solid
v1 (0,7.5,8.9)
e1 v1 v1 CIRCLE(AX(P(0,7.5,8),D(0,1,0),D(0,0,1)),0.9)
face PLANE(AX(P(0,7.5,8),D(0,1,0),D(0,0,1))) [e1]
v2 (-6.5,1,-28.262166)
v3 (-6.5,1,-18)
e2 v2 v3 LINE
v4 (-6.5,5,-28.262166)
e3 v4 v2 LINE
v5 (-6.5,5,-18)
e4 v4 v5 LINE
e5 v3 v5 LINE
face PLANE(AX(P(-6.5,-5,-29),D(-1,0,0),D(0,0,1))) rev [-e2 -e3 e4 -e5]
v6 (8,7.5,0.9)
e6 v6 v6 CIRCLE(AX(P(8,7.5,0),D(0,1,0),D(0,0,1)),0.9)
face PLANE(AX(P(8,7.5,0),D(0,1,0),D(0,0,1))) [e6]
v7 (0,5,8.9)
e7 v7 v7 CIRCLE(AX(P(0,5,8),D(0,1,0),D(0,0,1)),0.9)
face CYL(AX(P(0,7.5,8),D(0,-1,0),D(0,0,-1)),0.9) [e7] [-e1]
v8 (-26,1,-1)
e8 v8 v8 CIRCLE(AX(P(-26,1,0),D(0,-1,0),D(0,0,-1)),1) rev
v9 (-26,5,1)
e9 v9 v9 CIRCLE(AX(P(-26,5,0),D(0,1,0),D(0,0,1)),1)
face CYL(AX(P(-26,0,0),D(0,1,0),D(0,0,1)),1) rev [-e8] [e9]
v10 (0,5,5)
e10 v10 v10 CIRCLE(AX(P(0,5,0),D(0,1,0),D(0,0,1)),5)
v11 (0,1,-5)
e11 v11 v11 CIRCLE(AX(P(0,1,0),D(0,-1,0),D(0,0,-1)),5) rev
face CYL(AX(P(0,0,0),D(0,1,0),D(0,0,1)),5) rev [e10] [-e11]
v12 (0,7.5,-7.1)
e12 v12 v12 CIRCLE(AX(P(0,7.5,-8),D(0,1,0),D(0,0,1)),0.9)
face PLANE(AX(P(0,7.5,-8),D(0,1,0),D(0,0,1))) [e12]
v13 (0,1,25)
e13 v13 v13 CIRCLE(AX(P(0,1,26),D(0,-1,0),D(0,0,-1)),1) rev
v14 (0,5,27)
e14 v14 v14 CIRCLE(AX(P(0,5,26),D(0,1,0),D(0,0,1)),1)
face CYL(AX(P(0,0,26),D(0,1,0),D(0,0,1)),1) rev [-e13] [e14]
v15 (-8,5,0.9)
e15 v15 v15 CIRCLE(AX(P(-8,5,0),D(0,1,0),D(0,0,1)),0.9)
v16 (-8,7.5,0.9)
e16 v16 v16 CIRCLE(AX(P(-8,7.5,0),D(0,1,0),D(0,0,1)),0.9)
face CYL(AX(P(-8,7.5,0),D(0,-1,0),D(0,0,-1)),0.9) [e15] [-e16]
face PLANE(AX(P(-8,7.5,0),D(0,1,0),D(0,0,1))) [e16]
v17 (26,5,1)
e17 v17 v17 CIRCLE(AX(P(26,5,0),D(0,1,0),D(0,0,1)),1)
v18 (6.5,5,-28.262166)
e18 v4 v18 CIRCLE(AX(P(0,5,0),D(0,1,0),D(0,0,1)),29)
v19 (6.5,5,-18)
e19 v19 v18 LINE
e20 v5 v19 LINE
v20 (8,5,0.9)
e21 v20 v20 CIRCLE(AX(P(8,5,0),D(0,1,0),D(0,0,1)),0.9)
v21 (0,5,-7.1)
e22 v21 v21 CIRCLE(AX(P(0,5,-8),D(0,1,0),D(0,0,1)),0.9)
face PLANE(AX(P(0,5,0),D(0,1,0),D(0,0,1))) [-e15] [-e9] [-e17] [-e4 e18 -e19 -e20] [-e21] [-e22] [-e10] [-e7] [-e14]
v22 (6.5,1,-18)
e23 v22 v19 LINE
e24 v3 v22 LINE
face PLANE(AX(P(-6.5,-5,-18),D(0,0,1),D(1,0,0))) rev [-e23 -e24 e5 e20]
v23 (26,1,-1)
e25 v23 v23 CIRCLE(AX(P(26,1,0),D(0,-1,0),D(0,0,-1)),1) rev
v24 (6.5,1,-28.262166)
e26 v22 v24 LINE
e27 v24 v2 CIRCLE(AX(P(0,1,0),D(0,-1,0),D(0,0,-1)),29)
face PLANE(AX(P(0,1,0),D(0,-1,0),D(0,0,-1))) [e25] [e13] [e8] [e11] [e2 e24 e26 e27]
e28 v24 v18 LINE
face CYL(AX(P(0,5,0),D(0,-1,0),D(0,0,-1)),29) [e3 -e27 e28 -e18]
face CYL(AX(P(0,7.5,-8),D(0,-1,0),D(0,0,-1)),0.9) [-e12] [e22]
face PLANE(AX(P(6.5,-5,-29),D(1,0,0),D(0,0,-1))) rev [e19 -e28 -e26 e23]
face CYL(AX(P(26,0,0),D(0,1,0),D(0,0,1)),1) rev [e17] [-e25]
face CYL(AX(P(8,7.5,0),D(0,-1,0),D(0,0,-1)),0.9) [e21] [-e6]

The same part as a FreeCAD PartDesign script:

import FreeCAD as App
import Part
import Sketcher

V = App.Vector


def add_polygon(sketch, points):
    """Adds a closed chain of lines whose ends are joined by coincident constraints."""
    first, n = sketch.GeometryCount, len(points)
    for a, b in zip(points, points[1:] + points[:1]):
        sketch.addGeometry(Part.LineSegment(App.Vector(*a, 0), App.Vector(*b, 0)), False)
    for i in range(n):
        sketch.addConstraint(Sketcher.Constraint("Coincident", first + i, 2, first + (i + 1) % n, 1))

doc = App.newDocument("Part")
body = doc.addObject("PartDesign::Body", "Body")

# Sketch on XZ plane
sketch1 = doc.addObject("Sketcher::SketchObject", "Sketch")
body.addObject(sketch1)
sketch1.AttachmentSupport = (doc.XZ_Plane, [""])
sketch1.MapMode = "FlatFace"
sketch1.addGeometry(Part.Circle(V(0, 0, 0), V(0, 0, 1), 29), False)
sketch1.addConstraint([
    Sketcher.Constraint("Coincident", 0, 3, -1, 1),
    Sketcher.Constraint("Diameter", 0, 58.0),
])
pad1 = doc.addObject("PartDesign::Pad", "Pad")
body.addObject(pad1)
pad1.Profile = sketch1
pad1.Length = 5
pad1.Reversed = True

# Sketch on XZ plane
sketch2 = doc.addObject("Sketcher::SketchObject", "Sketch001")
body.addObject(sketch2)
sketch2.AttachmentSupport = (doc.XZ_Plane, [""])
sketch2.MapMode = "FlatFace"
sketch2.AttachmentOffset = App.Placement(V(0, 0, -5), App.Rotation())
add_polygon(sketch2, [(-6.5, -29), (-6.5, -18), (6.5, -18), (6.5, -29)])  # lines 0-3
sketch2.addConstraint([
    Sketcher.Constraint("Vertical", 0),
    Sketcher.Constraint("Horizontal", 1),
    Sketcher.Constraint("Vertical", 2),
    Sketcher.Constraint("Horizontal", 3),
    Sketcher.Constraint("DistanceX", 1, 1, 1, 2, 13.0),
    Sketcher.Constraint("DistanceY", 0, 1, 0, 2, 11.0),
    Sketcher.Constraint("DistanceY", 0, 2, -1, 1, 18.0),
    Sketcher.Constraint("DistanceX", 0, 2, -1, 1, 6.5),
])
pocket1 = doc.addObject("PartDesign::Pocket", "Pocket")
body.addObject(pocket1)
pocket1.Profile = sketch2
pocket1.Length = 10
pocket1.Reversed = True

# Sketch on XZ plane
sketch3 = doc.addObject("Sketcher::SketchObject", "Sketch002")
body.addObject(sketch3)
sketch3.AttachmentSupport = (doc.XZ_Plane, [""])
sketch3.MapMode = "FlatFace"
sketch3.AttachmentOffset = App.Placement(V(0, 0, -5), App.Rotation())
sketch3.addGeometry([
    Part.Circle(V(8, 0, 0), V(0, 0, 1), 0.9),
    Part.Circle(V(-8, 0, 0), V(0, 0, 1), 0.9),
    Part.Circle(V(0, -8, 0), V(0, 0, 1), 0.9),
    Part.Circle(V(0, 8, 0), V(0, 0, 1), 0.9),
], False)
sketch3.addConstraint([
    Sketcher.Constraint("Equal", 0, 1),
    Sketcher.Constraint("Equal", 1, 2),
    Sketcher.Constraint("Equal", 2, 3),
    Sketcher.Constraint("Symmetric", 0, 3, 1, 3, -1, 1),
    Sketcher.Constraint("Symmetric", 2, 3, 3, 3, -1, 1),
    Sketcher.Constraint("PointOnObject", 0, 3, -1),
    Sketcher.Constraint("PointOnObject", 2, 3, -2),
    Sketcher.Constraint("Diameter", 0, 1.8),
    Sketcher.Constraint("DistanceX", -1, 1, 0, 3, 8.0),
    Sketcher.Constraint("DistanceY", 2, 3, -1, 1, 8.0),
])
pad2 = doc.addObject("PartDesign::Pad", "Pad001")
body.addObject(pad2)
pad2.Profile = sketch3
pad2.Length = 2.5
pad2.Reversed = True

# Sketch on XZ plane
sketch4 = doc.addObject("Sketcher::SketchObject", "Sketch003")
body.addObject(sketch4)
sketch4.AttachmentSupport = (doc.XZ_Plane, [""])
sketch4.MapMode = "FlatFace"
sketch4.AttachmentOffset = App.Placement(V(0, 0, -5), App.Rotation())
sketch4.addGeometry(Part.Circle(V(0, 0, 0), V(0, 0, 1), 5), False)
sketch4.addConstraint([
    Sketcher.Constraint("Coincident", 0, 3, -1, 1),
    Sketcher.Constraint("Diameter", 0, 10.0),
])
pocket2 = doc.addObject("PartDesign::Pocket", "Pocket001")
body.addObject(pocket2)
pocket2.Profile = sketch4
pocket2.Length = 5
pocket2.Reversed = True

# Sketch on XZ plane
sketch5 = doc.addObject("Sketcher::SketchObject", "Sketch004")
body.addObject(sketch5)
sketch5.AttachmentSupport = (doc.XZ_Plane, [""])
sketch5.MapMode = "FlatFace"
sketch5.AttachmentOffset = App.Placement(V(0, 0, -5), App.Rotation())
sketch5.addGeometry([
    Part.Circle(V(-26, 0, 0), V(0, 0, 1), 1),
    Part.Circle(V(0, 26, 0), V(0, 0, 1), 1),
    Part.Circle(V(26, 0, 0), V(0, 0, 1), 1),
], False)
sketch5.addConstraint([
    Sketcher.Constraint("Equal", 0, 1),
    Sketcher.Constraint("Equal", 1, 2),
    Sketcher.Constraint("Symmetric", 0, 3, 2, 3, -1, 1),
    Sketcher.Constraint("PointOnObject", 0, 3, -1),
    Sketcher.Constraint("PointOnObject", 1, 3, -2),
    Sketcher.Constraint("Diameter", 0, 2.0),
    Sketcher.Constraint("DistanceX", 0, 3, -1, 1, 26.0),
    Sketcher.Constraint("DistanceY", -1, 1, 1, 3, 26.0),
])
pocket3 = doc.addObject("PartDesign::Pocket", "Pocket002")
body.addObject(pocket3)
pocket3.Profile = sketch5
pocket3.Length = 5
pocket3.Reversed = True

# Sketch on XZ plane
sketch6 = doc.addObject("Sketcher::SketchObject", "Sketch005")
body.addObject(sketch6)
sketch6.AttachmentSupport = (doc.XZ_Plane, [""])
sketch6.MapMode = "FlatFace"
sketch6.addGeometry(Part.Circle(V(0, 0, 0), V(0, 0, 1), 29), False)
sketch6.addConstraint([
    Sketcher.Constraint("Coincident", 0, 3, -1, 1),
    Sketcher.Constraint("Diameter", 0, 58.0),
])
pocket4 = doc.addObject("PartDesign::Pocket", "Pocket003")
body.addObject(pocket4)
pocket4.Profile = sketch6
pocket4.Length = 1

doc.recompute()
